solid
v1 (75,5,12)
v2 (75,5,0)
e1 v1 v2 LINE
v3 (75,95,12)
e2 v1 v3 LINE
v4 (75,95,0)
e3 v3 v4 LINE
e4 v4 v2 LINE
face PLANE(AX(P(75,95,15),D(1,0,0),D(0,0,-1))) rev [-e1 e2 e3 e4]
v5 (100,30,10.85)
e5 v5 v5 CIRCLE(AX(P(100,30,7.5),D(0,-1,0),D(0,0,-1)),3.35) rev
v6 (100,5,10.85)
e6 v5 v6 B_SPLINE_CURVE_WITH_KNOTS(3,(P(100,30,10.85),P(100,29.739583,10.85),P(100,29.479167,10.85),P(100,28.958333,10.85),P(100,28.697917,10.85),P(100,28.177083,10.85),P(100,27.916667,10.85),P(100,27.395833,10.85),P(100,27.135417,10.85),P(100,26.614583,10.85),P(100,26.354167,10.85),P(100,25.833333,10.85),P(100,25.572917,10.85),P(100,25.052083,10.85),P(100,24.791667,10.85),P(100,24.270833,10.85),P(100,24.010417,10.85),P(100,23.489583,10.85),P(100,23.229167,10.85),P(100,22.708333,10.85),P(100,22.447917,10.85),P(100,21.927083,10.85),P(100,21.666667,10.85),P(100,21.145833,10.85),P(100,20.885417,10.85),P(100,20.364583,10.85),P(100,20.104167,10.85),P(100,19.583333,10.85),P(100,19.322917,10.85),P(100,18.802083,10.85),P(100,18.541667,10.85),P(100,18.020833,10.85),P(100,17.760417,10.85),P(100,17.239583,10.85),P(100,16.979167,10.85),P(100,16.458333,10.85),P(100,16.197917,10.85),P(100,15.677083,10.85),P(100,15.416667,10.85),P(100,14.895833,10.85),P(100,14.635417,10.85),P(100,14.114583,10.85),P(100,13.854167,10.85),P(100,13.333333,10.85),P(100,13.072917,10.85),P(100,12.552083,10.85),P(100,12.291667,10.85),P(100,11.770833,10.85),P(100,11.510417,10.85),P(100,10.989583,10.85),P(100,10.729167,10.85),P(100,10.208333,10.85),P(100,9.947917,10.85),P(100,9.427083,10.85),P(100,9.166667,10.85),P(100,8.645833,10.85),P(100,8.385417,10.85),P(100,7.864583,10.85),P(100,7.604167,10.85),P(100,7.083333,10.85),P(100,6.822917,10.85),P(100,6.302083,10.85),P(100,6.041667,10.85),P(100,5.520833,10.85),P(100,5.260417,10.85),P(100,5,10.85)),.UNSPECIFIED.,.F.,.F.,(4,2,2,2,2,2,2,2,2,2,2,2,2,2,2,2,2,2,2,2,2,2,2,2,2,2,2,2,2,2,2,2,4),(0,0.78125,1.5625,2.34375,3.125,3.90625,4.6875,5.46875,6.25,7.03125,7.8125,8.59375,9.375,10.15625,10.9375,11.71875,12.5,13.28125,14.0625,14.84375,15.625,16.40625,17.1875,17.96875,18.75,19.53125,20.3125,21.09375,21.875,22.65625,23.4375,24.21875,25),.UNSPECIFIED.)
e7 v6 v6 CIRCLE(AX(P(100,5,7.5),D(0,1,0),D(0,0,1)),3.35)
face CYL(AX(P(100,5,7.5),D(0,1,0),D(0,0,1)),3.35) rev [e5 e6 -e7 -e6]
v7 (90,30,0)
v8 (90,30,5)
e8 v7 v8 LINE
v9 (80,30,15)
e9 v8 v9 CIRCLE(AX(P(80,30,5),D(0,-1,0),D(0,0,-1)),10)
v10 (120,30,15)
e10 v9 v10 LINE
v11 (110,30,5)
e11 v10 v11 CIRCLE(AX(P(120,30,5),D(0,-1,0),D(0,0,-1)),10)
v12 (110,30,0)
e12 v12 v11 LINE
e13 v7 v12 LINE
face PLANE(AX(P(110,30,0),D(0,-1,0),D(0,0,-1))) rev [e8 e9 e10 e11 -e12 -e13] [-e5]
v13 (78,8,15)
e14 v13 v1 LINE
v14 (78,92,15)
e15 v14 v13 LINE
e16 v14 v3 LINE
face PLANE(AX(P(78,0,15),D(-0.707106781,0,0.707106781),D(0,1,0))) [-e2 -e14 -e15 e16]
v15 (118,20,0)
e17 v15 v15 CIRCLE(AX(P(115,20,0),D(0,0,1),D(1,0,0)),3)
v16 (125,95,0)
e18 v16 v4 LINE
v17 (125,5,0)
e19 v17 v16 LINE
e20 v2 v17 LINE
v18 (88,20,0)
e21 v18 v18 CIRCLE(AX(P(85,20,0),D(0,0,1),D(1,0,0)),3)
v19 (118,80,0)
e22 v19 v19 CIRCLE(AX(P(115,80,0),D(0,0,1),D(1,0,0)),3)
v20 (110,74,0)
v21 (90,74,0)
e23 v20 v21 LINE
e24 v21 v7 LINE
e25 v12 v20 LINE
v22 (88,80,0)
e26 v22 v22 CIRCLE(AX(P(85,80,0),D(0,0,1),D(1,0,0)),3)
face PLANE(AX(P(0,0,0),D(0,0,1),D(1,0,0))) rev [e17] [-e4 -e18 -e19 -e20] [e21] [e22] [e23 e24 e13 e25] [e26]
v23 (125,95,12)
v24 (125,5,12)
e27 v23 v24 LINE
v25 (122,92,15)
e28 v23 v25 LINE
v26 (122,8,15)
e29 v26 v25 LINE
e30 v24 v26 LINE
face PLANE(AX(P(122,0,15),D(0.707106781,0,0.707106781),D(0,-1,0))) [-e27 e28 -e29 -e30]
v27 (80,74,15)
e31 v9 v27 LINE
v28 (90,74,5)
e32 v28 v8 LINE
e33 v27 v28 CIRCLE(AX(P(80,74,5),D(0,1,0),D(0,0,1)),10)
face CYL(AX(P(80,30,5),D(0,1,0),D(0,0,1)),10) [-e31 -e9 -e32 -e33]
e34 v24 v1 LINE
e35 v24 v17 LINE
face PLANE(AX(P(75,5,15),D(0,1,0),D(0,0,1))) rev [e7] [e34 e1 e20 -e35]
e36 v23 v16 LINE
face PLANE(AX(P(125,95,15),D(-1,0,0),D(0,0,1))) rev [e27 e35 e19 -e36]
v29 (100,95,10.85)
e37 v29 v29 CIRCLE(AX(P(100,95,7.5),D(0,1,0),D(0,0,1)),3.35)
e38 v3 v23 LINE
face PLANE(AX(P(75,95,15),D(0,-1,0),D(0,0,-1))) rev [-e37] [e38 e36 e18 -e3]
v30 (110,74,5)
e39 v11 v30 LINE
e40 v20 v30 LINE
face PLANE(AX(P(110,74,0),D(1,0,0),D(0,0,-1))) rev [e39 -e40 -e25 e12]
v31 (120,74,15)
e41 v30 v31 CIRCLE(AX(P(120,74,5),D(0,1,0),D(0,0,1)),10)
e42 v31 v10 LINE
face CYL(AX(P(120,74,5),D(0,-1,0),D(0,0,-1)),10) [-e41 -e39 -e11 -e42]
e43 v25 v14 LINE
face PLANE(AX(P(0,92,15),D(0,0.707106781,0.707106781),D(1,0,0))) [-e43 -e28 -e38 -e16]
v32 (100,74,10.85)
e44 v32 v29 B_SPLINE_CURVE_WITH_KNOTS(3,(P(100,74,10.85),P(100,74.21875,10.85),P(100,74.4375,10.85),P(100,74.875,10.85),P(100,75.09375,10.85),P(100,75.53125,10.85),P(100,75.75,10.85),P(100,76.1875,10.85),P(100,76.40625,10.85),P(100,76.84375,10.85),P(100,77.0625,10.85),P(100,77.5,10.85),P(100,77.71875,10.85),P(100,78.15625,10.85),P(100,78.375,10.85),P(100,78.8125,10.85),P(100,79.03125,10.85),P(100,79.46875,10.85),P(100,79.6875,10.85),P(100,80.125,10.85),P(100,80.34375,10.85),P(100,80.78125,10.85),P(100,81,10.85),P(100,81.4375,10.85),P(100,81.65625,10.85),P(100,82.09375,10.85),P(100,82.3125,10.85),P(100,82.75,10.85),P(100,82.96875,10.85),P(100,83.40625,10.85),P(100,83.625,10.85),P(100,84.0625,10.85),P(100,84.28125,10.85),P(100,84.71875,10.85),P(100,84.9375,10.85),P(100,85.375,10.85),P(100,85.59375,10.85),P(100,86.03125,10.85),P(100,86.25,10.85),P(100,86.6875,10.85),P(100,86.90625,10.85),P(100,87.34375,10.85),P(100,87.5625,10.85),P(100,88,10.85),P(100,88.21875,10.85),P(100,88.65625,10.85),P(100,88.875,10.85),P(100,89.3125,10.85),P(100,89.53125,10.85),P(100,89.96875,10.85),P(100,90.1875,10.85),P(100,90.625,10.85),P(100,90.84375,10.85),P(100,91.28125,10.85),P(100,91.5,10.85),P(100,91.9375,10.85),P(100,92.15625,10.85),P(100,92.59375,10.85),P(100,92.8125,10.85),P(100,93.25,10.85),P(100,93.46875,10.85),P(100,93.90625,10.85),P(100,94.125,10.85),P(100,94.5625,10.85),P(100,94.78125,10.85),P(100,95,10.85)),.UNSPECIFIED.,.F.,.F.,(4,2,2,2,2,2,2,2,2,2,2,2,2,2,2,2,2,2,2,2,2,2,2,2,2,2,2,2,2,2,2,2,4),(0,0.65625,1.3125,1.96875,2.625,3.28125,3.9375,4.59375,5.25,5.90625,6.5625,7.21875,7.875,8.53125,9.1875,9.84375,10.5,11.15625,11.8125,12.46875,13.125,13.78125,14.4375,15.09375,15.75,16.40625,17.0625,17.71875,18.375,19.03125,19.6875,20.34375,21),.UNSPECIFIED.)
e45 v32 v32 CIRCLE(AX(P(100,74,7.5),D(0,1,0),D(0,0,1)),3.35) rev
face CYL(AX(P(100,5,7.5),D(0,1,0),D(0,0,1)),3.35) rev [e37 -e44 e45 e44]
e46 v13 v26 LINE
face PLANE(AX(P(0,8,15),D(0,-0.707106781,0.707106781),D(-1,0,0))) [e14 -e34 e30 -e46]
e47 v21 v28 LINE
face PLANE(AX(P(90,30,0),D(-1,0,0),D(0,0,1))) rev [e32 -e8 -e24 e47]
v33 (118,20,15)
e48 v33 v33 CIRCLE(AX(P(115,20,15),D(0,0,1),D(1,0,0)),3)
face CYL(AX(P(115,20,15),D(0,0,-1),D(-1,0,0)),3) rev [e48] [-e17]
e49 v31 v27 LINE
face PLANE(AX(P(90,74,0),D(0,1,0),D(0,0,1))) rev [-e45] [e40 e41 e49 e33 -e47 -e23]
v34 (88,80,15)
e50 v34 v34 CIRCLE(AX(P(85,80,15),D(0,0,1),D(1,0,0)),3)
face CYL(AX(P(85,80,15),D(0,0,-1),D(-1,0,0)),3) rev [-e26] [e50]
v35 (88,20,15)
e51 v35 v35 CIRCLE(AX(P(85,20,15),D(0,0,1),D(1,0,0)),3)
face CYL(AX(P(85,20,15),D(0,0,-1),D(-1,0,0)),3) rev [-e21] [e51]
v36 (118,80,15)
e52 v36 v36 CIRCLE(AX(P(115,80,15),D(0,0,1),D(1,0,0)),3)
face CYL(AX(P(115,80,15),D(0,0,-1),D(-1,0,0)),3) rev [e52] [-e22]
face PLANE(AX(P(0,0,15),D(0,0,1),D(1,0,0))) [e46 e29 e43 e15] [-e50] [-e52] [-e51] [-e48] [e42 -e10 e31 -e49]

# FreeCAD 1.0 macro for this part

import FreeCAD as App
import Part
import Sketcher
from FreeCAD import Vector
Q = App.Units.Quantity


def edges_at(feature, points):
    """Names of the edges that pass closest to the given points."""
    edges = feature.Shape.Edges
    near = lambda p: min(range(len(edges)), key=lambda i: edges[i].distToShape(Part.Vertex(*p))[0])
    return sorted({f"Edge{near(p) + 1}" for p in points})

doc = App.newDocument("Part")
body = doc.addObject("PartDesign::Body", "Body")

sketch1 = body.newObject("Sketcher::SketchObject", "Sketch")
sketch1.AttachmentSupport = (doc.getObject("XY_Plane"), [""])
sketch1.MapMode = "FlatFace"
sketch1.addGeometry([
    Part.LineSegment(Vector(75, 95, 0), Vector(75, 5, 0)),
    Part.LineSegment(Vector(75, 5, 0), Vector(125, 5, 0)),
    Part.LineSegment(Vector(125, 5, 0), Vector(125, 95, 0)),
    Part.LineSegment(Vector(125, 95, 0), Vector(75, 95, 0)),
    Part.Circle(Vector(85, 20, 0), Vector(0, 0, 1), 3),
    Part.Circle(Vector(115, 20, 0), Vector(0, 0, 1), 3),
    Part.Circle(Vector(85, 80, 0), Vector(0, 0, 1), 3),
    Part.Circle(Vector(115, 80, 0), Vector(0, 0, 1), 3),
], False)
sketch1.addConstraint([
    Sketcher.Constraint("Coincident", 0, 2, 1, 1),
    Sketcher.Constraint("Coincident", 1, 2, 2, 1),
    Sketcher.Constraint("Coincident", 2, 2, 3, 1),
    Sketcher.Constraint("Coincident", 3, 2, 0, 1),
    Sketcher.Constraint("Vertical", 0),
    Sketcher.Constraint("Horizontal", 1),
    Sketcher.Constraint("Vertical", 2),
    Sketcher.Constraint("Horizontal", 3),
    Sketcher.Constraint("Equal", 4, 5),
    Sketcher.Constraint("Equal", 5, 6),
    Sketcher.Constraint("Equal", 6, 7),
    Sketcher.Constraint("Horizontal", 4, 3, 5, 3),
    Sketcher.Constraint("Horizontal", 6, 3, 7, 3),
    Sketcher.Constraint("Vertical", 4, 3, 6, 3),
    Sketcher.Constraint("Vertical", 5, 3, 7, 3),
    Sketcher.Constraint("Diameter", 4, Q("6 mm")),
    Sketcher.Constraint("DistanceX", 1, 1, 1, 2, Q("50 mm")),
    Sketcher.Constraint("DistanceY", 0, 2, 0, 1, Q("90 mm")),
    Sketcher.Constraint("DistanceX", -1, 1, 4, 3, Q("85 mm")),
    Sketcher.Constraint("DistanceY", -1, 1, 4, 3, Q("20 mm")),
    Sketcher.Constraint("DistanceX", -1, 1, 5, 3, Q("115 mm")),
    Sketcher.Constraint("DistanceY", -1, 1, 6, 3, Q("80 mm")),
    Sketcher.Constraint("DistanceX", -1, 1, 0, 2, Q("75 mm")),
    Sketcher.Constraint("DistanceY", -1, 1, 0, 2, Q("5 mm")),
])
pad1 = body.newObject("PartDesign::Pad", "Pad")
pad1.Profile = sketch1
pad1.Length = 15

sketch2 = body.newObject("Sketcher::SketchObject", "Sketch001")
sketch2.AttachmentSupport = (doc.getObject("XZ_Plane"), [""])
sketch2.MapMode = "FlatFace"
sketch2.AttachmentOffset = App.Placement(Vector(0, 0, -95), App.Rotation())
sketch2.addGeometry(Part.Circle(Vector(100, 7.5, 0), Vector(0, 0, 1), 3.35), False)
sketch2.addConstraint([
    Sketcher.Constraint("Diameter", 0, Q("6.7 mm")),
    Sketcher.Constraint("DistanceX", -1, 1, 0, 3, Q("100 mm")),
    Sketcher.Constraint("DistanceY", -1, 1, 0, 3, Q("7.5 mm")),
])
pocket1 = body.newObject("PartDesign::Pocket", "Pocket")
pocket1.Profile = sketch2
pocket1.Type = "ThroughAll"
pocket1.Reversed = True

sketch3 = body.newObject("Sketcher::SketchObject", "Sketch002")
sketch3.AttachmentSupport = (doc.getObject("XY_Plane"), [""])
sketch3.MapMode = "FlatFace"
sketch3.AttachmentOffset = App.Placement(Vector(0, 0, 15), App.Rotation())
sketch3.addGeometry([
    Part.LineSegment(Vector(90, 74, 0), Vector(90, 30, 0)),
    Part.LineSegment(Vector(90, 30, 0), Vector(110, 30, 0)),
    Part.LineSegment(Vector(110, 30, 0), Vector(110, 74, 0)),
    Part.LineSegment(Vector(110, 74, 0), Vector(90, 74, 0)),
], False)
sketch3.addConstraint([
    Sketcher.Constraint("Coincident", 0, 2, 1, 1),
    Sketcher.Constraint("Coincident", 1, 2, 2, 1),
    Sketcher.Constraint("Coincident", 2, 2, 3, 1),
    Sketcher.Constraint("Coincident", 3, 2, 0, 1),
    Sketcher.Constraint("Vertical", 0),
    Sketcher.Constraint("Horizontal", 1),
    Sketcher.Constraint("Vertical", 2),
    Sketcher.Constraint("Horizontal", 3),
    Sketcher.Constraint("DistanceX", 1, 1, 1, 2, Q("20 mm")),
    Sketcher.Constraint("DistanceY", 0, 2, 0, 1, Q("44 mm")),
    Sketcher.Constraint("DistanceX", -1, 1, 0, 2, Q("90 mm")),
    Sketcher.Constraint("DistanceY", -1, 1, 0, 2, Q("30 mm")),
])
pocket2 = body.newObject("PartDesign::Pocket", "Pocket001")
pocket2.Profile = sketch3
pocket2.Type = "ThroughAll"
doc.recompute()

chamfer = body.newObject("PartDesign::Chamfer", "Chamfer")
chamfer.Base = (pocket2, edges_at(pocket2, [
    (75, 50, 15),
    (100, 5, 15),
    (125, 50, 15),
    (100, 95, 15),
]))
chamfer.Size = 3
doc.recompute()

fillet = body.newObject("PartDesign::Fillet", "Fillet")
fillet.Base = (chamfer, edges_at(chamfer, [(90, 52, 15), (110, 52, 15)]))
fillet.Radius = 10

doc.recompute()
